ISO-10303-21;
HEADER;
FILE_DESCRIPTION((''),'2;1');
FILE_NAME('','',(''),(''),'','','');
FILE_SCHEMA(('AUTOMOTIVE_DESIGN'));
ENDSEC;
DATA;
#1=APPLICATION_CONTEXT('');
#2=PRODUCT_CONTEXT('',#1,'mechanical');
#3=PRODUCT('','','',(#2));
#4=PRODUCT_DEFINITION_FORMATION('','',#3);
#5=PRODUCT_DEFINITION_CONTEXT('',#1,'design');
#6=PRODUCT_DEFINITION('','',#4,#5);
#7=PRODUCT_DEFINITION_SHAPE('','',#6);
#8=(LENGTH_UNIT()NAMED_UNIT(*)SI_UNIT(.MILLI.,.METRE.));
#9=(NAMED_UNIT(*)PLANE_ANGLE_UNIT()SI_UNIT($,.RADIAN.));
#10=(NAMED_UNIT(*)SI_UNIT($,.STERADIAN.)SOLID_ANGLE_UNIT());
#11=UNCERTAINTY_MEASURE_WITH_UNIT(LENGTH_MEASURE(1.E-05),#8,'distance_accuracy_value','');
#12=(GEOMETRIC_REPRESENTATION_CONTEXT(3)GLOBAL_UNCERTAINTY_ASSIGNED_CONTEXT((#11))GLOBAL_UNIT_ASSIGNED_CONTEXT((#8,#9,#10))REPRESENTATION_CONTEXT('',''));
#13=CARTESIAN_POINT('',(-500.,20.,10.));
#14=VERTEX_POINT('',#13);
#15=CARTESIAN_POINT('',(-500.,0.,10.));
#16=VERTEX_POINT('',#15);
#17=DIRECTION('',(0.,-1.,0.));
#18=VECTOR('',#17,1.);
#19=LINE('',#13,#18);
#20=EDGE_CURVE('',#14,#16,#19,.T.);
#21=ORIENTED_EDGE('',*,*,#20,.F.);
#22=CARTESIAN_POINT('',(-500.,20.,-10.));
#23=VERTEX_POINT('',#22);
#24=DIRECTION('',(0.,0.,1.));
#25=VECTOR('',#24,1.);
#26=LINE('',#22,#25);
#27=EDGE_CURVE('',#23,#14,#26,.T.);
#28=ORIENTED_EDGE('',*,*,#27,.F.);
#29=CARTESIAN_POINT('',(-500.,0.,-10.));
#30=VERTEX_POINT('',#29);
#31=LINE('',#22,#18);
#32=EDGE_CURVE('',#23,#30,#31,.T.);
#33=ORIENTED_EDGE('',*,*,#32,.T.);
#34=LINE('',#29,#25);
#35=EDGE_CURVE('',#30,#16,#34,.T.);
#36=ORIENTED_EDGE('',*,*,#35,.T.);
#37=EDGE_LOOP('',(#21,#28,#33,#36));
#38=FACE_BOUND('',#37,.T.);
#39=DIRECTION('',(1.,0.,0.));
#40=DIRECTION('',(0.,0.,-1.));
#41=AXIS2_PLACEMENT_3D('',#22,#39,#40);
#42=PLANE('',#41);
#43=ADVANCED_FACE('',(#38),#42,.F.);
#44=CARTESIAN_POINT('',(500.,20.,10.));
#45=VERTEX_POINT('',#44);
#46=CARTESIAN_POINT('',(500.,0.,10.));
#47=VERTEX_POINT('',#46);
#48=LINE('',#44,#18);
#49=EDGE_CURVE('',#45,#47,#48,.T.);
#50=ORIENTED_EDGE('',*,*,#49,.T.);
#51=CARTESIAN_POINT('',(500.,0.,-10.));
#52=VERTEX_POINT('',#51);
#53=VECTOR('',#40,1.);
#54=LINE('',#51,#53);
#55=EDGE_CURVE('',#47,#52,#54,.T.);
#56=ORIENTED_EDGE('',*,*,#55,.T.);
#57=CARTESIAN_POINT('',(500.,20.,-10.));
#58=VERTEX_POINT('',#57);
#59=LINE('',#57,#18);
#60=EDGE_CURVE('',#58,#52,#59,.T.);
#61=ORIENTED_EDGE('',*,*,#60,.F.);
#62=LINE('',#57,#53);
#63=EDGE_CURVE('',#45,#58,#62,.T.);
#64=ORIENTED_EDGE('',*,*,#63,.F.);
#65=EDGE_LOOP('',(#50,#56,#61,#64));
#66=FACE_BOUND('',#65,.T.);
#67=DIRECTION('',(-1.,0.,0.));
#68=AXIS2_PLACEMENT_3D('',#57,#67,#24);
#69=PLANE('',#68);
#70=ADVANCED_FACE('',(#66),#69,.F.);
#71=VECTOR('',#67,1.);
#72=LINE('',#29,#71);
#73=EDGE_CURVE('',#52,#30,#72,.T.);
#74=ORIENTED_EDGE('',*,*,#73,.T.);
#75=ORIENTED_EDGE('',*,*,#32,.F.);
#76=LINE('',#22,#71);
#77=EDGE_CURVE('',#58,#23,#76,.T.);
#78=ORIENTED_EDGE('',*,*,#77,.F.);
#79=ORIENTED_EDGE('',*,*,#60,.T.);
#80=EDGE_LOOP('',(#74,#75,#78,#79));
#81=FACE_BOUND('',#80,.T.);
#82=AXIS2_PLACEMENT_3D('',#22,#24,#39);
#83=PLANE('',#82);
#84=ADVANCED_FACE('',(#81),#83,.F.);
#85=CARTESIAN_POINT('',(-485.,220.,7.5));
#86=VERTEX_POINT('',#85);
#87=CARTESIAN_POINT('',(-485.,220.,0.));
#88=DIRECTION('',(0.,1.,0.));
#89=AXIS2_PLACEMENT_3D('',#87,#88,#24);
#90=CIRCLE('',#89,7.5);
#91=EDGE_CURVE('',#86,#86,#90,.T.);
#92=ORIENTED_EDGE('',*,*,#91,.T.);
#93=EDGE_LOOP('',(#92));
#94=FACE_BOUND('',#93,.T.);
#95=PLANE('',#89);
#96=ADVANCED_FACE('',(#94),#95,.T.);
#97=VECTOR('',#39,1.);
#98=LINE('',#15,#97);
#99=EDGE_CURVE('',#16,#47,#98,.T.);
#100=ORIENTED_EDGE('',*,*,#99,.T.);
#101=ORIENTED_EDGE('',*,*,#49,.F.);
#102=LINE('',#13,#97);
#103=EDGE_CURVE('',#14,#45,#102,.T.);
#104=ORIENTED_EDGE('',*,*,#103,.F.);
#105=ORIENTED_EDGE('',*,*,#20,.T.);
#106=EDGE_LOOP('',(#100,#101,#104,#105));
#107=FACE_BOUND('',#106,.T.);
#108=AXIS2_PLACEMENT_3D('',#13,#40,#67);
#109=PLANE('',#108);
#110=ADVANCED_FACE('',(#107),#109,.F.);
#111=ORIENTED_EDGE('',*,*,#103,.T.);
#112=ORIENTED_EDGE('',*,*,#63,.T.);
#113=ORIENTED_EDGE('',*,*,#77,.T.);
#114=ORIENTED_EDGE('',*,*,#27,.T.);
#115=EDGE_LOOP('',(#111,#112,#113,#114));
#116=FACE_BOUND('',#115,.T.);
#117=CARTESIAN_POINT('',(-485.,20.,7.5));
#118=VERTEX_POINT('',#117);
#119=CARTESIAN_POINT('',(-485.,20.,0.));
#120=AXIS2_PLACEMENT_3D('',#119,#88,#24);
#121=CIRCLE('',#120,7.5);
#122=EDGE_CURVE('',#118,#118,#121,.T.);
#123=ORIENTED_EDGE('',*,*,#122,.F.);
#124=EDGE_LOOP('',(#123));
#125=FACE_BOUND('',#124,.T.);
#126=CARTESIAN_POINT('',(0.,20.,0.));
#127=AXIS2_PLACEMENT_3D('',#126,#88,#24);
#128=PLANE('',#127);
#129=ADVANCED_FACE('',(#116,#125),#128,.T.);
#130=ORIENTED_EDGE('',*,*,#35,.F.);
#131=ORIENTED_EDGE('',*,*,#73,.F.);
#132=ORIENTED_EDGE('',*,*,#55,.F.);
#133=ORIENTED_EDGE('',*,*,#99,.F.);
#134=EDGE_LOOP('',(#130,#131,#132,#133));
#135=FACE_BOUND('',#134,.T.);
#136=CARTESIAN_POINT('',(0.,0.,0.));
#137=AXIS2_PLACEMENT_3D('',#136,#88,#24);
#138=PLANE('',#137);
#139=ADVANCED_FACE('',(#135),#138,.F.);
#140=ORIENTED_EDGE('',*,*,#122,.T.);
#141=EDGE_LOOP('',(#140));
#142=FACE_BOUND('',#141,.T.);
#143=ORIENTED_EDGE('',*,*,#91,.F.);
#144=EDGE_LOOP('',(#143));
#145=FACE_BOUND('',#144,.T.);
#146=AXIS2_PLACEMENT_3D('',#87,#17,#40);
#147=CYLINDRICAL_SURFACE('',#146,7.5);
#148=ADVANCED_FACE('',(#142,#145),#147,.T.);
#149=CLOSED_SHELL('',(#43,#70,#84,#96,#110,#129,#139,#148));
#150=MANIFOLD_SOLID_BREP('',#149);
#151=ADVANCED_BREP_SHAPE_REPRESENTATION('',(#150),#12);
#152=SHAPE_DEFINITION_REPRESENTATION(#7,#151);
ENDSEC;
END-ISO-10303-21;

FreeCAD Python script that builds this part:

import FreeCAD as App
import Part
import Sketcher

doc = App.newDocument("Part")
body = doc.addObject("PartDesign::Body", "Body")

sketch1 = body.newObject("Sketcher::SketchObject", "Sketch")
sketch1.AttachmentSupport = (doc.getObject("XZ_Plane"), [""])
sketch1.MapMode = "FlatFace"
sketch1.addGeometry([
    Part.LineSegment(App.Vector(-500, -10, 0), App.Vector(-500, 10, 0)),
    Part.LineSegment(App.Vector(-500, 10, 0), App.Vector(500, 10, 0)),
    Part.LineSegment(App.Vector(500, 10, 0), App.Vector(500, -10, 0)),
    Part.LineSegment(App.Vector(500, -10, 0), App.Vector(-500, -10, 0)),
], False)
sketch1.addConstraint([
    Sketcher.Constraint("Coincident", 0, 2, 1, 1),
    Sketcher.Constraint("Coincident", 1, 2, 2, 1),
    Sketcher.Constraint("Coincident", 2, 2, 3, 1),
    Sketcher.Constraint("Coincident", 3, 2, 0, 1),
    Sketcher.Constraint("Vertical", 0),
    Sketcher.Constraint("Horizontal", 1),
    Sketcher.Constraint("Vertical", 2),
    Sketcher.Constraint("Horizontal", 3),
    Sketcher.Constraint("Symmetric", 0, 2, 2, 2, -1, 1),
    Sketcher.Constraint("DistanceX", 1, 1, 1, 2, 1000.0),
    Sketcher.Constraint("DistanceY", 0, 1, 0, 2, 20.0),
])
pad1 = body.newObject("PartDesign::Pad", "Pad")
pad1.Profile = sketch1
pad1.Length = 20
pad1.Reversed = True

sketch2 = body.newObject("Sketcher::SketchObject", "Sketch001")
sketch2.AttachmentSupport = (doc.getObject("XZ_Plane"), [""])
sketch2.MapMode = "FlatFace"
sketch2.AttachmentOffset = App.Placement(App.Vector(0, 0, -20), App.Rotation())
sketch2.addGeometry(Part.Circle(App.Vector(-485, 0, 0), App.Vector(0, 0, 1), 8), False)
sketch2.addConstraint([
    Sketcher.Constraint("PointOnObject", 0, 3, -1),
    Sketcher.Constraint("Diameter", 0, 15.0),
    Sketcher.Constraint("DistanceX", 0, 3, -1, 1, 485.0),
])
pad2 = body.newObject("PartDesign::Pad", "Pad001")
pad2.Profile = sketch2
pad2.Length = 200
pad2.Reversed = True

doc.recompute()
